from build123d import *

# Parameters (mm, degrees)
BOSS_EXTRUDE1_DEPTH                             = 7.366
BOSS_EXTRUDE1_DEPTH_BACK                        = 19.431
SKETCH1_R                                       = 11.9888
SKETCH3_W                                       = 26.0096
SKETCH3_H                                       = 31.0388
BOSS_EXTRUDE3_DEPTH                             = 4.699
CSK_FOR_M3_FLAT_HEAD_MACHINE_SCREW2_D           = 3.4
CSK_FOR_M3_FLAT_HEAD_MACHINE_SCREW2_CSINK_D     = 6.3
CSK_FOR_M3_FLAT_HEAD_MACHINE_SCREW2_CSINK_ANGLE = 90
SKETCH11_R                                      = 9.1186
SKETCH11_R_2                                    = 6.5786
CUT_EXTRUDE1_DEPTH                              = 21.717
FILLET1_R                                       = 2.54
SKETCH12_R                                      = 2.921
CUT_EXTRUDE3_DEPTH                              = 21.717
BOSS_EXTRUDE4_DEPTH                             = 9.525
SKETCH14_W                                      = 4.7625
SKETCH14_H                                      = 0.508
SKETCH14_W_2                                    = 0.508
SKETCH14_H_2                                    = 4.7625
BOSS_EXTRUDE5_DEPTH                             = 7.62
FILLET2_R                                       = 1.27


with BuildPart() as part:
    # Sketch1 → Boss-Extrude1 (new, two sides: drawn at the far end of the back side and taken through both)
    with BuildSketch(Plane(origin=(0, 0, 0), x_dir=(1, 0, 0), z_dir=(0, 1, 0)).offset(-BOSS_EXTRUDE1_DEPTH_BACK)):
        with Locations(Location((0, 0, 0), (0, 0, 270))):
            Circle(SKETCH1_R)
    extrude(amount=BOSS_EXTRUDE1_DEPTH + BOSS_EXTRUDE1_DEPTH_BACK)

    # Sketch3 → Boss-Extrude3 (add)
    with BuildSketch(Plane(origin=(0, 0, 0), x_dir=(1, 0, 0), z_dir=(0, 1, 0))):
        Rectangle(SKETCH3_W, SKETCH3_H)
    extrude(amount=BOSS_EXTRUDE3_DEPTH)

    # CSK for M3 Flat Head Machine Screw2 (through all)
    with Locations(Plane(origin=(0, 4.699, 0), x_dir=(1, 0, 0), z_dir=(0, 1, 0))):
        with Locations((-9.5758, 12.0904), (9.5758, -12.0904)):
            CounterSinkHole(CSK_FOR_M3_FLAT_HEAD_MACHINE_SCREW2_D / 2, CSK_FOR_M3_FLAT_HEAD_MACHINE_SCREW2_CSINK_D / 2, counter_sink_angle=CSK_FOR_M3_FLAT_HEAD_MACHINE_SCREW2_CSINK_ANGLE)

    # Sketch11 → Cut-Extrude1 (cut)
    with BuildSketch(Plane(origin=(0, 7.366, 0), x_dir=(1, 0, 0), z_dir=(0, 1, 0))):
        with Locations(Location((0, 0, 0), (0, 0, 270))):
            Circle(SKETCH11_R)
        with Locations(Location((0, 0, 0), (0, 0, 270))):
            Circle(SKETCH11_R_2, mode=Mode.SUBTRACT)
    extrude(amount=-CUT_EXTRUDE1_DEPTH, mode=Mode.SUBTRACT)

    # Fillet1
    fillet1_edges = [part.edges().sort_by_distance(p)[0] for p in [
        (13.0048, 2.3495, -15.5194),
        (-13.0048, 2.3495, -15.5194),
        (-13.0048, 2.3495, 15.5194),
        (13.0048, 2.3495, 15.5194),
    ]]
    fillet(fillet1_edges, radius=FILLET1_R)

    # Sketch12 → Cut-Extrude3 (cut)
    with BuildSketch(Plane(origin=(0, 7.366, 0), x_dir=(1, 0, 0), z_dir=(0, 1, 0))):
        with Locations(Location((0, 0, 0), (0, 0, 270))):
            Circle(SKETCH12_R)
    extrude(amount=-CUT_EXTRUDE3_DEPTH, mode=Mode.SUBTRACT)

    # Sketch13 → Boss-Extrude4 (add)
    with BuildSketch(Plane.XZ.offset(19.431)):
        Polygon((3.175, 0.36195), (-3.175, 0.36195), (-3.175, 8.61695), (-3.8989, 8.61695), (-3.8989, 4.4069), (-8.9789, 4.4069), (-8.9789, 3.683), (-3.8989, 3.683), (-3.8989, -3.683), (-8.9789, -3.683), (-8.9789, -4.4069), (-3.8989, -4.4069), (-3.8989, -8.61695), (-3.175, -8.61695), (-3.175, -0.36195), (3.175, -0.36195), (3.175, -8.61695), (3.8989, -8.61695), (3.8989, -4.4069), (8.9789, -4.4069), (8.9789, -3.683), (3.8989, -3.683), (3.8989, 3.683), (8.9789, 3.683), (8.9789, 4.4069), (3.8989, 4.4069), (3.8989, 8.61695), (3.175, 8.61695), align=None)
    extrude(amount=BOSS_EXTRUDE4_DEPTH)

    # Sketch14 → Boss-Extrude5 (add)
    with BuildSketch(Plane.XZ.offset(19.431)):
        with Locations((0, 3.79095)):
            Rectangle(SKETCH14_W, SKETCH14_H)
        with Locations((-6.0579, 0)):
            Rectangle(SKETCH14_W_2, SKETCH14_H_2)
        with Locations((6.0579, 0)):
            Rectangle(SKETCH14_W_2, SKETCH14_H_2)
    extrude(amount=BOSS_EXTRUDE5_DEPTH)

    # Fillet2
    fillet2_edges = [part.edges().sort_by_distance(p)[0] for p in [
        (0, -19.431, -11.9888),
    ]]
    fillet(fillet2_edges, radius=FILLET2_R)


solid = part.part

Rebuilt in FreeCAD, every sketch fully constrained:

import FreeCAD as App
import Part
import Sketcher

V = App.Vector
Q = App.Units.Quantity


def edges_at(feature, points):
    """Names of the edges that pass closest to the given points."""
    edges = feature.Shape.Edges
    near = lambda p: min(range(len(edges)), key=lambda i: edges[i].distToShape(Part.Vertex(*p))[0])
    return sorted({f"Edge{near(p) + 1}" for p in points})

doc = App.newDocument("Part")
body = doc.addObject("PartDesign::Body", "Body")

# Sketch on XZ plane
sketch1 = body.newObject("Sketcher::SketchObject", "Sketch")
sketch1.AttachmentSupport = (doc.getObject("XZ_Plane"), [""])
sketch1.MapMode = "FlatFace"
sketch1.addGeometry(Part.Circle(V(0, 0, 0), V(0, 0, 1), 12), False)
sketch1.addConstraint(Sketcher.Constraint("Coincident", 0, 3, -1, 1))
sketch1.addConstraint(Sketcher.Constraint("Diameter", 0, Q("0.944 in")))
pad1 = body.newObject("PartDesign::Pad", "Pad")
pad1.Profile = sketch1
pad1.Type = "TwoLengths"
pad1.Length = Q("0.29 in")
pad1.Length2 = Q("0.765 in")
pad1.Reversed = True

# Sketch on XZ plane
sketch2 = body.newObject("Sketcher::SketchObject", "Sketch001")
sketch2.AttachmentSupport = (doc.getObject("XZ_Plane"), [""])
sketch2.MapMode = "FlatFace"
sketch2.addGeometry(Part.LineSegment(V(-13, -16, 0), V(-13, 16, 0)), False)
sketch2.addGeometry(Part.LineSegment(V(-13, 16, 0), V(13, 16, 0)), False)
sketch2.addGeometry(Part.LineSegment(V(13, 16, 0), V(13, -16, 0)), False)
sketch2.addGeometry(Part.LineSegment(V(13, -16, 0), V(-13, -16, 0)), False)
sketch2.addConstraint(Sketcher.Constraint("Coincident", 0, 2, 1, 1))
sketch2.addConstraint(Sketcher.Constraint("Coincident", 1, 2, 2, 1))
sketch2.addConstraint(Sketcher.Constraint("Coincident", 2, 2, 3, 1))
sketch2.addConstraint(Sketcher.Constraint("Coincident", 3, 2, 0, 1))
sketch2.addConstraint(Sketcher.Constraint("Vertical", 0))
sketch2.addConstraint(Sketcher.Constraint("Horizontal", 1))
sketch2.addConstraint(Sketcher.Constraint("Vertical", 2))
sketch2.addConstraint(Sketcher.Constraint("Horizontal", 3))
sketch2.addConstraint(Sketcher.Constraint("Symmetric", 0, 2, 2, 2, -1, 1))
sketch2.addConstraint(Sketcher.Constraint("DistanceX", 1, 1, 1, 2, Q("1.024 in")))
sketch2.addConstraint(Sketcher.Constraint("DistanceY", 0, 1, 0, 2, Q("1.222 in")))
pad2 = body.newObject("PartDesign::Pad", "Pad001")
pad2.Profile = sketch2
pad2.Length = Q("0.185 in")
pad2.Reversed = True

# Sketch on XZ plane
sketch3 = body.newObject("Sketcher::SketchObject", "Sketch002")
sketch3.AttachmentSupport = (doc.getObject("XZ_Plane"), [""])
sketch3.MapMode = "FlatFace"
sketch3.AttachmentOffset = App.Placement(V(0, 0, -0.185 * 25.4), App.Rotation())
sketch3.addGeometry(Part.Circle(V(-9.6, -12.1, 0), V(0, 0, 1), 1.7), False)
sketch3.addGeometry(Part.Circle(V(9.6, 12.1, 0), V(0, 0, 1), 1.7), False)
sketch3.addConstraint(Sketcher.Constraint("Equal", 0, 1))
sketch3.addConstraint(Sketcher.Constraint("Symmetric", 0, 3, 1, 3, -1, 1))
sketch3.addConstraint(Sketcher.Constraint("Diameter", 0, 3.4))
sketch3.addConstraint(Sketcher.Constraint("DistanceX", 0, 3, -1, 1, Q("0.377 in")))
sketch3.addConstraint(Sketcher.Constraint("DistanceY", 0, 3, -1, 1, Q("0.476 in")))
doc.recompute()
hole = body.newObject("PartDesign::Hole", "Hole")
hole.Profile = sketch3
hole.ThreadType = "None"
hole.Diameter = 3.4
hole.DepthType = "ThroughAll"
hole.HoleCutType = "Countersink"
hole.HoleCutDiameter = 6.3
hole.HoleCutCountersinkAngle = 90
hole.Reversed = True

# Sketch on XZ plane
sketch4 = body.newObject("Sketcher::SketchObject", "Sketch003")
sketch4.AttachmentSupport = (doc.getObject("XZ_Plane"), [""])
sketch4.MapMode = "FlatFace"
sketch4.AttachmentOffset = App.Placement(V(0, 0, -0.29 * 25.4), App.Rotation())
sketch4.addGeometry(Part.Circle(V(0, 0, 0), V(0, 0, 1), 9), False)
sketch4.addGeometry(Part.Circle(V(0, 0, 0), V(0, 0, 1), 7), False)
sketch4.addConstraint(Sketcher.Constraint("Coincident", 0, 3, -1, 1))
sketch4.addConstraint(Sketcher.Constraint("Coincident", 1, 3, -1, 1))
sketch4.addConstraint(Sketcher.Constraint("Diameter", 0, Q("0.718 in")))
sketch4.addConstraint(Sketcher.Constraint("Diameter", 1, Q("0.518 in")))
pocket1 = body.newObject("PartDesign::Pocket", "Pocket")
pocket1.Profile = sketch4
pocket1.Length = Q("0.855 in")
pocket1.Reversed = True
doc.recompute()

fillet = body.newObject("PartDesign::Fillet", "Fillet")
fillet.Base = (pocket1, edges_at(pocket1, [
    (13.005, 2.349, -15.519),
    (-13.005, 2.349, -15.519),
    (-13.005, 2.349, 15.519),
    (13.005, 2.349, 15.519),
]))
fillet.Radius = Q("0.1 in")

# Sketch on XZ plane
sketch5 = body.newObject("Sketcher::SketchObject", "Sketch004")
sketch5.AttachmentSupport = (doc.getObject("XZ_Plane"), [""])
sketch5.MapMode = "FlatFace"
sketch5.AttachmentOffset = App.Placement(V(0, 0, -0.29 * 25.4), App.Rotation())
sketch5.addGeometry(Part.Circle(V(0, 0, 0), V(0, 0, 1), 2.9), False)
sketch5.addConstraint(Sketcher.Constraint("Coincident", 0, 3, -1, 1))
sketch5.addConstraint(Sketcher.Constraint("Diameter", 0, Q("0.23 in")))
pocket2 = body.newObject("PartDesign::Pocket", "Pocket001")
pocket2.Profile = sketch5
pocket2.Length = Q("0.855 in")
pocket2.Reversed = True

# Sketch on XZ plane
sketch6 = body.newObject("Sketcher::SketchObject", "Sketch005")
sketch6.AttachmentSupport = (doc.getObject("XZ_Plane"), [""])
sketch6.MapMode = "FlatFace"
sketch6.AttachmentOffset = App.Placement(V(0, 0, 0.765 * 25.4), App.Rotation())
sketch6.addGeometry(Part.LineSegment(V(3.2, 0.4, 0), V(-3.2, 0.4, 0)), False)
sketch6.addGeometry(Part.LineSegment(V(-3.2, 0.4, 0), V(-3.2, 8.6, 0)), False)
sketch6.addGeometry(Part.LineSegment(V(-3.2, 8.6, 0), V(-3.9, 8.6, 0)), False)
sketch6.addGeometry(Part.LineSegment(V(-3.9, 8.6, 0), V(-3.9, 4.4, 0)), False)
sketch6.addGeometry(Part.LineSegment(V(-3.9, 4.4, 0), V(-9, 4.4, 0)), False)
sketch6.addGeometry(Part.LineSegment(V(-9, 4.4, 0), V(-9, 3.7, 0)), False)
sketch6.addGeometry(Part.LineSegment(V(-9, 3.7, 0), V(-3.9, 3.7, 0)), False)
sketch6.addGeometry(Part.LineSegment(V(-3.9, 3.7, 0), V(-3.9, -3.7, 0)), False)
sketch6.addGeometry(Part.LineSegment(V(-3.9, -3.7, 0), V(-9, -3.7, 0)), False)
sketch6.addGeometry(Part.LineSegment(V(-9, -3.7, 0), V(-9, -4.4, 0)), False)
sketch6.addGeometry(Part.LineSegment(V(-9, -4.4, 0), V(-3.9, -4.4, 0)), False)
sketch6.addGeometry(Part.LineSegment(V(-3.9, -4.4, 0), V(-3.9, -8.6, 0)), False)
sketch6.addGeometry(Part.LineSegment(V(-3.9, -8.6, 0), V(-3.2, -8.6, 0)), False)
sketch6.addGeometry(Part.LineSegment(V(-3.2, -8.6, 0), V(-3.2, -0.4, 0)), False)
sketch6.addGeometry(Part.LineSegment(V(-3.2, -0.4, 0), V(3.2, -0.4, 0)), False)
sketch6.addGeometry(Part.LineSegment(V(3.2, -0.4, 0), V(3.2, -8.6, 0)), False)
sketch6.addGeometry(Part.LineSegment(V(3.2, -8.6, 0), V(3.9, -8.6, 0)), False)
sketch6.addGeometry(Part.LineSegment(V(3.9, -8.6, 0), V(3.9, -4.4, 0)), False)
sketch6.addGeometry(Part.LineSegment(V(3.9, -4.4, 0), V(9, -4.4, 0)), False)
sketch6.addGeometry(Part.LineSegment(V(9, -4.4, 0), V(9, -3.7, 0)), False)
sketch6.addGeometry(Part.LineSegment(V(9, -3.7, 0), V(3.9, -3.7, 0)), False)
sketch6.addGeometry(Part.LineSegment(V(3.9, -3.7, 0), V(3.9, 3.7, 0)), False)
sketch6.addGeometry(Part.LineSegment(V(3.9, 3.7, 0), V(9, 3.7, 0)), False)
sketch6.addGeometry(Part.LineSegment(V(9, 3.7, 0), V(9, 4.4, 0)), False)
sketch6.addGeometry(Part.LineSegment(V(9, 4.4, 0), V(3.9, 4.4, 0)), False)
sketch6.addGeometry(Part.LineSegment(V(3.9, 4.4, 0), V(3.9, 8.6, 0)), False)
sketch6.addGeometry(Part.LineSegment(V(3.9, 8.6, 0), V(3.2, 8.6, 0)), False)
sketch6.addGeometry(Part.LineSegment(V(3.2, 8.6, 0), V(3.2, 0.4, 0)), False)
sketch6.addConstraint(Sketcher.Constraint("Coincident", 0, 2, 1, 1))
sketch6.addConstraint(Sketcher.Constraint("Coincident", 1, 2, 2, 1))
sketch6.addConstraint(Sketcher.Constraint("Coincident", 2, 2, 3, 1))
sketch6.addConstraint(Sketcher.Constraint("Coincident", 3, 2, 4, 1))
sketch6.addConstraint(Sketcher.Constraint("Coincident", 4, 2, 5, 1))
sketch6.addConstraint(Sketcher.Constraint("Coincident", 5, 2, 6, 1))
sketch6.addConstraint(Sketcher.Constraint("Coincident", 6, 2, 7, 1))
sketch6.addConstraint(Sketcher.Constraint("Coincident", 7, 2, 8, 1))
sketch6.addConstraint(Sketcher.Constraint("Coincident", 8, 2, 9, 1))
sketch6.addConstraint(Sketcher.Constraint("Coincident", 9, 2, 10, 1))
sketch6.addConstraint(Sketcher.Constraint("Coincident", 10, 2, 11, 1))
sketch6.addConstraint(Sketcher.Constraint("Coincident", 11, 2, 12, 1))
sketch6.addConstraint(Sketcher.Constraint("Coincident", 12, 2, 13, 1))
sketch6.addConstraint(Sketcher.Constraint("Coincident", 13, 2, 14, 1))
sketch6.addConstraint(Sketcher.Constraint("Coincident", 14, 2, 15, 1))
sketch6.addConstraint(Sketcher.Constraint("Coincident", 15, 2, 16, 1))
sketch6.addConstraint(Sketcher.Constraint("Coincident", 16, 2, 17, 1))
sketch6.addConstraint(Sketcher.Constraint("Coincident", 17, 2, 18, 1))
sketch6.addConstraint(Sketcher.Constraint("Coincident", 18, 2, 19, 1))
sketch6.addConstraint(Sketcher.Constraint("Coincident", 19, 2, 20, 1))
sketch6.addConstraint(Sketcher.Constraint("Coincident", 20, 2, 21, 1))
sketch6.addConstraint(Sketcher.Constraint("Coincident", 21, 2, 22, 1))
sketch6.addConstraint(Sketcher.Constraint("Coincident", 22, 2, 23, 1))
sketch6.addConstraint(Sketcher.Constraint("Coincident", 23, 2, 24, 1))
sketch6.addConstraint(Sketcher.Constraint("Coincident", 24, 2, 25, 1))
sketch6.addConstraint(Sketcher.Constraint("Coincident", 25, 2, 26, 1))
sketch6.addConstraint(Sketcher.Constraint("Coincident", 26, 2, 27, 1))
sketch6.addConstraint(Sketcher.Constraint("Coincident", 27, 2, 0, 1))
sketch6.addConstraint(Sketcher.Constraint("Horizontal", 0))
sketch6.addConstraint(Sketcher.Constraint("Vertical", 1))
sketch6.addConstraint(Sketcher.Constraint("Horizontal", 2))
sketch6.addConstraint(Sketcher.Constraint("Vertical", 3))
sketch6.addConstraint(Sketcher.Constraint("Horizontal", 4))
sketch6.addConstraint(Sketcher.Constraint("Vertical", 5))
sketch6.addConstraint(Sketcher.Constraint("Horizontal", 6))
sketch6.addConstraint(Sketcher.Constraint("Vertical", 7))
sketch6.addConstraint(Sketcher.Constraint("Horizontal", 8))
sketch6.addConstraint(Sketcher.Constraint("Vertical", 9))
sketch6.addConstraint(Sketcher.Constraint("Horizontal", 10))
sketch6.addConstraint(Sketcher.Constraint("Vertical", 11))
sketch6.addConstraint(Sketcher.Constraint("Horizontal", 12))
sketch6.addConstraint(Sketcher.Constraint("Vertical", 13))
sketch6.addConstraint(Sketcher.Constraint("Horizontal", 14))
sketch6.addConstraint(Sketcher.Constraint("Vertical", 15))
sketch6.addConstraint(Sketcher.Constraint("Horizontal", 16))
sketch6.addConstraint(Sketcher.Constraint("Vertical", 17))
sketch6.addConstraint(Sketcher.Constraint("Horizontal", 18))
sketch6.addConstraint(Sketcher.Constraint("Vertical", 19))
sketch6.addConstraint(Sketcher.Constraint("Horizontal", 20))
sketch6.addConstraint(Sketcher.Constraint("Vertical", 21))
sketch6.addConstraint(Sketcher.Constraint("Horizontal", 22))
sketch6.addConstraint(Sketcher.Constraint("Vertical", 23))
sketch6.addConstraint(Sketcher.Constraint("Horizontal", 24))
sketch6.addConstraint(Sketcher.Constraint("Vertical", 25))
sketch6.addConstraint(Sketcher.Constraint("Horizontal", 26))
sketch6.addConstraint(Sketcher.Constraint("Vertical", 27))
sketch6.addConstraint(Sketcher.Constraint("Symmetric", 0, 2, 14, 2, -1, 1))
sketch6.addConstraint(Sketcher.Constraint("Symmetric", 2, 2, 16, 2, -1, 1))
sketch6.addConstraint(Sketcher.Constraint("Symmetric", 4, 2, 18, 2, -1, 1))
sketch6.addConstraint(Sketcher.Constraint("Symmetric", 6, 2, 20, 2, -1, 1))
sketch6.addConstraint(Sketcher.Constraint("Symmetric", 8, 2, 22, 2, -1, 1))
sketch6.addConstraint(Sketcher.Constraint("Symmetric", 10, 2, 24, 2, -1, 1))
sketch6.addConstraint(Sketcher.Constraint("Symmetric", 12, 2, 26, 2, -1, 1))
sketch6.addConstraint(Sketcher.Constraint("Symmetric", 12, 2, 15, 2, -2))
sketch6.addConstraint(Sketcher.Constraint("Symmetric", 10, 2, 17, 2, -2))
sketch6.addConstraint(Sketcher.Constraint("Symmetric", 8, 2, 19, 2, -2))
sketch6.addConstraint(Sketcher.Constraint("Vertical", 3, 2, 6, 2))
sketch6.addConstraint(Sketcher.Constraint("Equal", 26, 5))
sketch6.addConstraint(Sketcher.Constraint("DistanceX", 4, 2, 4, 1, Q("0.2 in")))
sketch6.addConstraint(Sketcher.Constraint("DistanceX", 0, 2, 0, 1, Q("0.25 in")))
sketch6.addConstraint(Sketcher.Constraint("DistanceY", 7, 2, 7, 1, Q("0.29 in")))
sketch6.addConstraint(Sketcher.Constraint("DistanceY", 1, 1, 1, 2, Q("0.325 in")))
sketch6.addConstraint(Sketcher.Constraint("DistanceX", 2, 2, 2, 1, Q("0.0285 in")))
sketch6.addConstraint(Sketcher.Constraint("DistanceY", 11, 2, 0, 2, Q("0.3535 in")))
pad3 = body.newObject("PartDesign::Pad", "Pad002")
pad3.Profile = sketch6
pad3.Length = Q("0.375 in")

# Sketch on XZ plane
sketch7 = body.newObject("Sketcher::SketchObject", "Sketch006")
sketch7.AttachmentSupport = (doc.getObject("XZ_Plane"), [""])
sketch7.MapMode = "FlatFace"
sketch7.AttachmentOffset = App.Placement(V(0, 0, 0.765 * 25.4), App.Rotation())
sketch7.addGeometry(Part.LineSegment(V(-2.4, 4, 0), V(-2.4, 3.5, 0)), False)
sketch7.addGeometry(Part.LineSegment(V(-2.4, 3.5, 0), V(2.4, 3.5, 0)), False)
sketch7.addGeometry(Part.LineSegment(V(2.4, 3.5, 0), V(2.4, 4, 0)), False)
sketch7.addGeometry(Part.LineSegment(V(2.4, 4, 0), V(-2.4, 4, 0)), False)
sketch7.addGeometry(Part.LineSegment(V(-6.3, 2.4, 0), V(-6.3, -2.4, 0)), False)
sketch7.addGeometry(Part.LineSegment(V(-6.3, -2.4, 0), V(-5.8, -2.4, 0)), False)
sketch7.addGeometry(Part.LineSegment(V(-5.8, -2.4, 0), V(-5.8, 2.4, 0)), False)
sketch7.addGeometry(Part.LineSegment(V(-5.8, 2.4, 0), V(-6.3, 2.4, 0)), False)
sketch7.addGeometry(Part.LineSegment(V(5.8, 2.4, 0), V(5.8, -2.4, 0)), False)
sketch7.addGeometry(Part.LineSegment(V(5.8, -2.4, 0), V(6.3, -2.4, 0)), False)
sketch7.addGeometry(Part.LineSegment(V(6.3, -2.4, 0), V(6.3, 2.4, 0)), False)
sketch7.addGeometry(Part.LineSegment(V(6.3, 2.4, 0), V(5.8, 2.4, 0)), False)
sketch7.addConstraint(Sketcher.Constraint("Coincident", 0, 2, 1, 1))
sketch7.addConstraint(Sketcher.Constraint("Coincident", 1, 2, 2, 1))
sketch7.addConstraint(Sketcher.Constraint("Coincident", 2, 2, 3, 1))
sketch7.addConstraint(Sketcher.Constraint("Coincident", 3, 2, 0, 1))
sketch7.addConstraint(Sketcher.Constraint("Coincident", 4, 2, 5, 1))
sketch7.addConstraint(Sketcher.Constraint("Coincident", 5, 2, 6, 1))
sketch7.addConstraint(Sketcher.Constraint("Coincident", 6, 2, 7, 1))
sketch7.addConstraint(Sketcher.Constraint("Coincident", 7, 2, 4, 1))
sketch7.addConstraint(Sketcher.Constraint("Coincident", 8, 2, 9, 1))
sketch7.addConstraint(Sketcher.Constraint("Coincident", 9, 2, 10, 1))
sketch7.addConstraint(Sketcher.Constraint("Coincident", 10, 2, 11, 1))
sketch7.addConstraint(Sketcher.Constraint("Coincident", 11, 2, 8, 1))
sketch7.addConstraint(Sketcher.Constraint("Vertical", 0))
sketch7.addConstraint(Sketcher.Constraint("Horizontal", 1))
sketch7.addConstraint(Sketcher.Constraint("Vertical", 2))
sketch7.addConstraint(Sketcher.Constraint("Horizontal", 3))
sketch7.addConstraint(Sketcher.Constraint("Vertical", 4))
sketch7.addConstraint(Sketcher.Constraint("Horizontal", 5))
sketch7.addConstraint(Sketcher.Constraint("Vertical", 6))
sketch7.addConstraint(Sketcher.Constraint("Horizontal", 7))
sketch7.addConstraint(Sketcher.Constraint("Vertical", 8))
sketch7.addConstraint(Sketcher.Constraint("Horizontal", 9))
sketch7.addConstraint(Sketcher.Constraint("Vertical", 10))
sketch7.addConstraint(Sketcher.Constraint("Horizontal", 11))
sketch7.addConstraint(Sketcher.Constraint("Symmetric", 6, 2, 8, 2, -1, 1))
sketch7.addConstraint(Sketcher.Constraint("Symmetric", 4, 2, 10, 2, -1, 1))
sketch7.addConstraint(Sketcher.Constraint("Horizontal", 5, 2, 8, 2))
sketch7.addConstraint(Sketcher.Constraint("Equal", 11, 0))
sketch7.addConstraint(Sketcher.Constraint("Equal", 3, 4))
sketch7.addConstraint(Sketcher.Constraint("DistanceX", 5, 1, 5, 2, Q("0.02 in")))
sketch7.addConstraint(Sketcher.Constraint("DistanceX", 1, 1, 1, 2, Q("0.1875 in")))
sketch7.addConstraint(Sketcher.Constraint("DistanceX", 0, 2, -1, 1, Q("0.09375 in")))
sketch7.addConstraint(Sketcher.Constraint("DistanceY", 4, 2, 0, 2, Q("0.233 in")))
sketch7.addConstraint(Sketcher.Constraint("DistanceX", 5, 2, 8, 2, Q("0.457 in")))
pad4 = body.newObject("PartDesign::Pad", "Pad003")
pad4.Profile = sketch7
pad4.Length = Q("0.3 in")
doc.recompute()

fillet2 = body.newObject("PartDesign::Fillet", "Fillet001")
fillet2.Base = (pad4, edges_at(pad4, [(0, -19.431, -11.989)]))
fillet2.Radius = Q("0.05 in")

doc.recompute()
